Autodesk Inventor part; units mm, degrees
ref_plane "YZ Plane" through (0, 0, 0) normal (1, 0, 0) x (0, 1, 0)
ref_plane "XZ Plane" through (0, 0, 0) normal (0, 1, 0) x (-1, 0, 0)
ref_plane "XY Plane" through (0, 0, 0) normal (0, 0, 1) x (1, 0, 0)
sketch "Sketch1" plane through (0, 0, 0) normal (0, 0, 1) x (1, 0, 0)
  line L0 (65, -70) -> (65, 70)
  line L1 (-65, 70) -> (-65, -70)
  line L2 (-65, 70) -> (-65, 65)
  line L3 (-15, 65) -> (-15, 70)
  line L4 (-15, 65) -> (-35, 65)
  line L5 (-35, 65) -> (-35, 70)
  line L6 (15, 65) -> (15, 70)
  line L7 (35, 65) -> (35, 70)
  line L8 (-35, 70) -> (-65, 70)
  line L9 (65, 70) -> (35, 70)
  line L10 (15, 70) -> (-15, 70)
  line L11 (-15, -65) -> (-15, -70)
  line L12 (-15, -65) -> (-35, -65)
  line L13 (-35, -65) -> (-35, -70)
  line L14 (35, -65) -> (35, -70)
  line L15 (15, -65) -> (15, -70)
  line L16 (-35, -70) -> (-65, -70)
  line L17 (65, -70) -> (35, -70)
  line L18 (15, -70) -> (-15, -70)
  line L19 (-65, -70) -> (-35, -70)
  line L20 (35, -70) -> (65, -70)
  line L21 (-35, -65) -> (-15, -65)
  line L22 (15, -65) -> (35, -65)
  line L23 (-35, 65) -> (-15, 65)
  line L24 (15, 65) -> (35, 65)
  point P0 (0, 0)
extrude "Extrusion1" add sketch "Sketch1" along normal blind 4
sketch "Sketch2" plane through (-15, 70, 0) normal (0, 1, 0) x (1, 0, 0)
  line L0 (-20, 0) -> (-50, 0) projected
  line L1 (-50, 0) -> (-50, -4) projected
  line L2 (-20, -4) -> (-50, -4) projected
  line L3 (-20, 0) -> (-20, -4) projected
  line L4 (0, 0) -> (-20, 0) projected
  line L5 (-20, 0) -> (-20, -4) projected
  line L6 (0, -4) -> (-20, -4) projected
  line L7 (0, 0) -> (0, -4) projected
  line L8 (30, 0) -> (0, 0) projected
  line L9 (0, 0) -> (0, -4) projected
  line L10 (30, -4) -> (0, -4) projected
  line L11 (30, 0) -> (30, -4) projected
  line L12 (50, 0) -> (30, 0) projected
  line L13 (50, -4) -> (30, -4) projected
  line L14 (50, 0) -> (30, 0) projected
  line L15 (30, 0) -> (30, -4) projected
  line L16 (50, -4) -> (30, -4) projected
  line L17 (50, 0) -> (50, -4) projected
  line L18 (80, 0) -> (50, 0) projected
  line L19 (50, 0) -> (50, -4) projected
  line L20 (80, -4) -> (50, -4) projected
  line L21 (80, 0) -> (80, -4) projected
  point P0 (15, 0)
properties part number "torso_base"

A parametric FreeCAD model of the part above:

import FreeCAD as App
import Part
import Sketcher

V = App.Vector
Q = App.Units.Quantity


def add_polygon(sketch, points):
    """Adds a closed chain of lines whose ends are joined by coincident constraints."""
    first, n = sketch.GeometryCount, len(points)
    for a, b in zip(points, points[1:] + points[:1]):
        sketch.addGeometry(Part.LineSegment(App.Vector(*a, 0), App.Vector(*b, 0)), False)
    for i in range(n):
        sketch.addConstraint(Sketcher.Constraint("Coincident", first + i, 2, first + (i + 1) % n, 1))

doc = App.newDocument("Part")
body = doc.addObject("PartDesign::Body", "Body")

# Sketch on XY plane
sketch1 = doc.addObject("Sketcher::SketchObject", "Sketch")
body.addObject(sketch1)
sketch1.AttachmentSupport = (doc.XY_Plane, [""])
sketch1.MapMode = "FlatFace"
add_polygon(sketch1, [(35, -70), (65, -70), (65, 70), (35, 70), (35, 65), (15, 65), (15, 70), (-15, 70), (-15, 65), (-35, 65), (-35, 70), (-65, 70), (-65, -70), (-35, -70), (-35, -65), (-15, -65), (-15, -70), (15, -70), (15, -65), (35, -65)])  # lines 0-19
sketch1.addConstraint(Sketcher.Constraint("Horizontal", 0))
sketch1.addConstraint(Sketcher.Constraint("Vertical", 1))
sketch1.addConstraint(Sketcher.Constraint("Horizontal", 2))
sketch1.addConstraint(Sketcher.Constraint("Vertical", 3))
sketch1.addConstraint(Sketcher.Constraint("Horizontal", 4))
sketch1.addConstraint(Sketcher.Constraint("Vertical", 5))
sketch1.addConstraint(Sketcher.Constraint("Horizontal", 6))
sketch1.addConstraint(Sketcher.Constraint("Vertical", 7))
sketch1.addConstraint(Sketcher.Constraint("Horizontal", 8))
sketch1.addConstraint(Sketcher.Constraint("Vertical", 9))
sketch1.addConstraint(Sketcher.Constraint("Horizontal", 10))
sketch1.addConstraint(Sketcher.Constraint("Vertical", 11))
sketch1.addConstraint(Sketcher.Constraint("Horizontal", 12))
sketch1.addConstraint(Sketcher.Constraint("Vertical", 13))
sketch1.addConstraint(Sketcher.Constraint("Horizontal", 14))
sketch1.addConstraint(Sketcher.Constraint("Vertical", 15))
sketch1.addConstraint(Sketcher.Constraint("Horizontal", 16))
sketch1.addConstraint(Sketcher.Constraint("Vertical", 17))
sketch1.addConstraint(Sketcher.Constraint("Horizontal", 18))
sketch1.addConstraint(Sketcher.Constraint("Vertical", 19))
sketch1.addConstraint(Sketcher.Constraint("Symmetric", 0, 2, 10, 2, -1, 1))
sketch1.addConstraint(Sketcher.Constraint("Symmetric", 2, 2, 12, 2, -1, 1))
sketch1.addConstraint(Sketcher.Constraint("Symmetric", 4, 2, 14, 2, -1, 1))
sketch1.addConstraint(Sketcher.Constraint("Symmetric", 6, 2, 16, 2, -1, 1))
sketch1.addConstraint(Sketcher.Constraint("Symmetric", 8, 2, 18, 2, -1, 1))
sketch1.addConstraint(Sketcher.Constraint("Symmetric", 4, 2, 7, 2, -2))
sketch1.addConstraint(Sketcher.Constraint("Symmetric", 2, 2, 9, 2, -2))
sketch1.addConstraint(Sketcher.Constraint("Horizontal", 2, 2, 5, 2))
sketch1.addConstraint(Sketcher.Constraint("Equal", 2, 6))
sketch1.addConstraint(Sketcher.Constraint("DistanceX", 0, 1, 0, 2, Q("30 mm")))
sketch1.addConstraint(Sketcher.Constraint("DistanceX", 4, 2, 4, 1, Q("20 mm")))
sketch1.addConstraint(Sketcher.Constraint("DistanceY", 1, 1, 1, 2, Q("140 mm")))
sketch1.addConstraint(Sketcher.Constraint("DistanceY", 3, 2, 3, 1, Q("5 mm")))
pad1 = doc.addObject("PartDesign::Pad", "Pad")
body.addObject(pad1)
pad1.Profile = sketch1
pad1.Length = 4

doc.recompute()
